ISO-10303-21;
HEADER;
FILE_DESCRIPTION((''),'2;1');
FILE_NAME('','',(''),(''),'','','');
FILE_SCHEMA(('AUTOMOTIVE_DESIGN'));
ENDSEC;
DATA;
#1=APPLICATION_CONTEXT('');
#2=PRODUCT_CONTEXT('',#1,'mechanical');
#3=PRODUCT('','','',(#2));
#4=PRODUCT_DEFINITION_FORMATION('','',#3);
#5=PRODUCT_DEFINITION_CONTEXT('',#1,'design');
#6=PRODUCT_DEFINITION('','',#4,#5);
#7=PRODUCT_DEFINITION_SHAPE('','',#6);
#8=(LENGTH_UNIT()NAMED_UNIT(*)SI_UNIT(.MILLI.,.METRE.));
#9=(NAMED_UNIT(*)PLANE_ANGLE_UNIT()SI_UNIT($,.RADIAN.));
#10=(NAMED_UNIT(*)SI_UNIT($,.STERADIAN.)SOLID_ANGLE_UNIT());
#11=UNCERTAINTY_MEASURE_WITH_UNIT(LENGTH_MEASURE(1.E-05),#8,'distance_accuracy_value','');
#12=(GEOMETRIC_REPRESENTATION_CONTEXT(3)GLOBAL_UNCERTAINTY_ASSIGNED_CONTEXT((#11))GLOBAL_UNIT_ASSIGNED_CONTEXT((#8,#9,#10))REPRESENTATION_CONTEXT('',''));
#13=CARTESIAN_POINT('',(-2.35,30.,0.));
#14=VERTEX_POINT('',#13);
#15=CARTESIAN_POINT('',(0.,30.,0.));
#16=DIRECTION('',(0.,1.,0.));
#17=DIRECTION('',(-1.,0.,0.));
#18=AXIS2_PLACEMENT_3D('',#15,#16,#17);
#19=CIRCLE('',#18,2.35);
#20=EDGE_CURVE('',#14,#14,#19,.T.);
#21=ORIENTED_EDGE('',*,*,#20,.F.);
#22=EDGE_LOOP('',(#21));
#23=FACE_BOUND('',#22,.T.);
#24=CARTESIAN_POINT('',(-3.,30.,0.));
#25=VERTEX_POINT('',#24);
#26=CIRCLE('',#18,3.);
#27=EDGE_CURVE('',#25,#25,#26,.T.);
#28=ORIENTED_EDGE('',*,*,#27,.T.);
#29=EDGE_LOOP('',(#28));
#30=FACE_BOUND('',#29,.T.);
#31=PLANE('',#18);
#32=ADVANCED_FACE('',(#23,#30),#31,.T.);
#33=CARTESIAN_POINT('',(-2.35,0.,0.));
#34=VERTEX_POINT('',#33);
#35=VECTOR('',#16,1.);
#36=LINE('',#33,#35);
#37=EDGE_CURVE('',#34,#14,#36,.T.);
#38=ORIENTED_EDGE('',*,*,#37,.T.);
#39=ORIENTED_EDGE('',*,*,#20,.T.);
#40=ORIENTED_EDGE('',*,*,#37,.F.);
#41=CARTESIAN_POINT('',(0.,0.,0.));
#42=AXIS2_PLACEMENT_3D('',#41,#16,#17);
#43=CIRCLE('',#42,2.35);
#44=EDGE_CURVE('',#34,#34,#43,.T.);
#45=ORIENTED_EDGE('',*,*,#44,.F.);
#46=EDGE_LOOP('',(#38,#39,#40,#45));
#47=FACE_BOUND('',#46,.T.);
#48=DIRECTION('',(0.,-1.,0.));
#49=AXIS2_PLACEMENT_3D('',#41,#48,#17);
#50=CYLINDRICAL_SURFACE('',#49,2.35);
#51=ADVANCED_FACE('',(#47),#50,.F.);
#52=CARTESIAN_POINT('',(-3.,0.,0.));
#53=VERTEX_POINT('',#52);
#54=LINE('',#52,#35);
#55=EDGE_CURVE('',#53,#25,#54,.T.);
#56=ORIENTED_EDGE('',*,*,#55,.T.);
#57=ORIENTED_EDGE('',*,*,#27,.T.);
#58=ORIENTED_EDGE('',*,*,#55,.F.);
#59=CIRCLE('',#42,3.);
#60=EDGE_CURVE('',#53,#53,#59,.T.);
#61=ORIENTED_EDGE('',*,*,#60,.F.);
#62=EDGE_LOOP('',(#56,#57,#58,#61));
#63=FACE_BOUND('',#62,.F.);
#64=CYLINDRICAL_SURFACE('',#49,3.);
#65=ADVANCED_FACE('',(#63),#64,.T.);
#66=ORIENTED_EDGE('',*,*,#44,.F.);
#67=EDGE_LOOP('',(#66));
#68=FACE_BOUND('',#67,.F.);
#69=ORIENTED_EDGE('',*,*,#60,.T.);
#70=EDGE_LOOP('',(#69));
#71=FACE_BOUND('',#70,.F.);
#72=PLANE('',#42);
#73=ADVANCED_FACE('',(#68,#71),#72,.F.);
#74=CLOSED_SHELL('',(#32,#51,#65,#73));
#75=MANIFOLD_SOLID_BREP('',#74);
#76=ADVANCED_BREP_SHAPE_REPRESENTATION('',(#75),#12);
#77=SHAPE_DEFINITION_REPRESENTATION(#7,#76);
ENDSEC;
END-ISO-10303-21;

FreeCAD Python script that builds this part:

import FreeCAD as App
import Part
import Sketcher

V = App.Vector

doc = App.newDocument("Part")
body = doc.addObject("PartDesign::Body", "Body")

sketch1 = body.newObject("Sketcher::SketchObject", "Sketch")
sketch1.AttachmentSupport = (doc.getObject("XZ_Plane"), [""])
sketch1.MapMode = "FlatFace"
sketch1.addGeometry(Part.Circle(V(0, 0, 0), V(0, 0, 1), 3), False)
sketch1.addGeometry(Part.Circle(V(0, 0, 0), V(0, 0, 1), 2.35), False)
sketch1.addConstraint(Sketcher.Constraint("Coincident", 0, 3, -1, 1))
sketch1.addConstraint(Sketcher.Constraint("Coincident", 1, 3, -1, 1))
sketch1.addConstraint(Sketcher.Constraint("Diameter", 0, 6.0))
sketch1.addConstraint(Sketcher.Constraint("Diameter", 1, 4.7))
pad1 = body.newObject("PartDesign::Pad", "Pad")
pad1.Profile = sketch1
pad1.Length = 30
pad1.Reversed = True

doc.recompute()
